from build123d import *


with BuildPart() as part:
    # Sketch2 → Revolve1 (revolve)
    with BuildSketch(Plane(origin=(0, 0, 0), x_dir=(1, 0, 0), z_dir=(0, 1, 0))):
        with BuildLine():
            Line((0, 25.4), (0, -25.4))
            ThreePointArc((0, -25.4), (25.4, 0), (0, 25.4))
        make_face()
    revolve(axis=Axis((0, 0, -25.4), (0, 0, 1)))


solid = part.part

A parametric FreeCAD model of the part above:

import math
import FreeCAD as App
import Part
import Sketcher

V = App.Vector
Q = App.Units.Quantity

doc = App.newDocument("Part")
body = doc.addObject("PartDesign::Body", "Body")

sketch1 = doc.addObject("Sketcher::SketchObject", "Sketch")
body.addObject(sketch1)
sketch1.AttachmentSupport = (doc.XZ_Plane, [""])
sketch1.MapMode = "FlatFace"
sketch1.addGeometry([
    Part.LineSegment(V(0, -25, 0), V(0, 25, 0)),
    Part.ArcOfCircle(Part.Circle(V(0, 0, 0), V(0, 0, 1), 25), math.radians(-90), math.radians(90)),
], False)
sketch1.addConstraint([
    Sketcher.Constraint("Coincident", 0, 1, 1, 1),
    Sketcher.Constraint("Coincident", 1, 2, 0, 2),
    Sketcher.Constraint("Vertical", 0),
    Sketcher.Constraint("Coincident", 1, 3, -1, 1),
    Sketcher.Constraint("PointOnObject", 0, 1, -2),
    Sketcher.Constraint("Radius", 1, Q("1 in")),
])
revolution = doc.addObject("PartDesign::Revolution", "Revolution")
body.addObject(revolution)
revolution.Profile = sketch1
revolution.ReferenceAxis = (sketch1, ["V_Axis"])
revolution.Angle = 360

doc.recompute()
